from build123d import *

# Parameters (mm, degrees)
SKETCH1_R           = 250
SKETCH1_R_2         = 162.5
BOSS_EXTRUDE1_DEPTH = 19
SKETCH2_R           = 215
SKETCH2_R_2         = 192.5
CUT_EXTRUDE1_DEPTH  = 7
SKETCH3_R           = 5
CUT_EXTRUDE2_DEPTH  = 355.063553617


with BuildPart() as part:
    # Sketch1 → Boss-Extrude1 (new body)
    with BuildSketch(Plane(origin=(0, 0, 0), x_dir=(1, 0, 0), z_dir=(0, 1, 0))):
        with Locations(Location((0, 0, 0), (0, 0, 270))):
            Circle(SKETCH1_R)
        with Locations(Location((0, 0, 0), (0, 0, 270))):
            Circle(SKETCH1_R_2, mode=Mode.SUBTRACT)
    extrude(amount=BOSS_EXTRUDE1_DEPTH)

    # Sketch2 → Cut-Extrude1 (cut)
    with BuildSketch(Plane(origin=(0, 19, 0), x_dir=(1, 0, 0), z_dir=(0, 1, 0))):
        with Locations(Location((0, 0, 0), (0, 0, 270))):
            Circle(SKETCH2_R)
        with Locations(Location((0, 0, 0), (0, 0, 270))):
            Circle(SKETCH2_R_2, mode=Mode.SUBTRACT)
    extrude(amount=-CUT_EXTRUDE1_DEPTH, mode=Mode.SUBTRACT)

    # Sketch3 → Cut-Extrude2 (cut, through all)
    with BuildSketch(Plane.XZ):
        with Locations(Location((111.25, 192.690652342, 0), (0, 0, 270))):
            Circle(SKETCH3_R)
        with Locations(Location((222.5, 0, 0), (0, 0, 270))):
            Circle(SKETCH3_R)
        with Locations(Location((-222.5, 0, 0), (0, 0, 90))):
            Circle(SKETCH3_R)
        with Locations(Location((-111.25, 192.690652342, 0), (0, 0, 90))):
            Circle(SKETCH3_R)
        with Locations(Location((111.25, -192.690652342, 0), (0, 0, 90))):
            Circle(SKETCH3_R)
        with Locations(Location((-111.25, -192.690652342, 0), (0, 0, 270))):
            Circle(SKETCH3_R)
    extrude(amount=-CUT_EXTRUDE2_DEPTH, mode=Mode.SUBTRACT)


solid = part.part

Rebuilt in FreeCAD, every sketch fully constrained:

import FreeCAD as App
import Part
import Sketcher
from FreeCAD import Vector

doc = App.newDocument("Part")
body = doc.addObject("PartDesign::Body", "Body")

sketch1 = body.newObject("Sketcher::SketchObject", "Sketch")
sketch1.AttachmentSupport = (doc.getObject("XZ_Plane"), [""])
sketch1.MapMode = "FlatFace"
sketch1.addGeometry([
    Part.Circle(Vector(0, 0, 0), Vector(0, 0, 1), 250),
    Part.Circle(Vector(0, 0, 0), Vector(0, 0, 1), 162.5),
], False)
sketch1.addConstraint([
    Sketcher.Constraint("Coincident", 0, 3, -1, 1),
    Sketcher.Constraint("Coincident", 1, 3, -1, 1),
    Sketcher.Constraint("Diameter", 0, 500.0),
    Sketcher.Constraint("Diameter", 1, 325.0),
])
pad1 = body.newObject("PartDesign::Pad", "Pad")
pad1.Profile = sketch1
pad1.Length = 19
pad1.Reversed = True

sketch2 = body.newObject("Sketcher::SketchObject", "Sketch001")
sketch2.AttachmentSupport = (doc.getObject("XZ_Plane"), [""])
sketch2.MapMode = "FlatFace"
sketch2.AttachmentOffset = App.Placement(Vector(0, 0, -19), App.Rotation())
sketch2.addGeometry([
    Part.Circle(Vector(0, 0, 0), Vector(0, 0, 1), 215),
    Part.Circle(Vector(0, 0, 0), Vector(0, 0, 1), 192.5),
], False)
sketch2.addConstraint([
    Sketcher.Constraint("Coincident", 0, 3, -1, 1),
    Sketcher.Constraint("Coincident", 1, 3, -1, 1),
    Sketcher.Constraint("Diameter", 0, 430.0),
    Sketcher.Constraint("Diameter", 1, 385.0),
])
pocket1 = body.newObject("PartDesign::Pocket", "Pocket")
pocket1.Profile = sketch2
pocket1.Length = 7
pocket1.Reversed = True

sketch3 = body.newObject("Sketcher::SketchObject", "Sketch002")
sketch3.AttachmentSupport = (doc.getObject("XZ_Plane"), [""])
sketch3.MapMode = "FlatFace"
sketch3.addGeometry([
    Part.Circle(Vector(111.25, 192.690652, 0), Vector(0, 0, 1), 5),
    Part.Circle(Vector(222.5, 0, 0), Vector(0, 0, 1), 5),
    Part.Circle(Vector(-222.5, 0, 0), Vector(0, 0, 1), 5),
    Part.Circle(Vector(-111.25, 192.690652, 0), Vector(0, 0, 1), 5),
    Part.Circle(Vector(111.25, -192.690652, 0), Vector(0, 0, 1), 5),
    Part.Circle(Vector(-111.25, -192.690652, 0), Vector(0, 0, 1), 5),
], False)
sketch3.addConstraint([
    Sketcher.Constraint("Equal", 0, 1),
    Sketcher.Constraint("Equal", 1, 2),
    Sketcher.Constraint("Equal", 2, 3),
    Sketcher.Constraint("Equal", 3, 4),
    Sketcher.Constraint("Equal", 4, 5),
    Sketcher.Constraint("Symmetric", 1, 3, 2, 3, -1, 1),
    Sketcher.Constraint("Symmetric", 3, 3, 4, 3, -1, 1),
    Sketcher.Constraint("Symmetric", 0, 3, 5, 3, -1, 1),
    Sketcher.Constraint("Symmetric", 0, 3, 3, 3, -2),
    Sketcher.Constraint("PointOnObject", 1, 3, -1),
    Sketcher.Constraint("Diameter", 0, 10.0),
    Sketcher.Constraint("DistanceX", 2, 3, 1, 3, 445.0),
    Sketcher.Constraint("DistanceX", 3, 3, 0, 3, 222.5),
    Sketcher.Constraint("DistanceY", -1, 1, 0, 3, 192.690652),
])
pocket2 = body.newObject("PartDesign::Pocket", "Pocket001")
pocket2.Profile = sketch3
pocket2.Type = "ThroughAll"

doc.recompute()
